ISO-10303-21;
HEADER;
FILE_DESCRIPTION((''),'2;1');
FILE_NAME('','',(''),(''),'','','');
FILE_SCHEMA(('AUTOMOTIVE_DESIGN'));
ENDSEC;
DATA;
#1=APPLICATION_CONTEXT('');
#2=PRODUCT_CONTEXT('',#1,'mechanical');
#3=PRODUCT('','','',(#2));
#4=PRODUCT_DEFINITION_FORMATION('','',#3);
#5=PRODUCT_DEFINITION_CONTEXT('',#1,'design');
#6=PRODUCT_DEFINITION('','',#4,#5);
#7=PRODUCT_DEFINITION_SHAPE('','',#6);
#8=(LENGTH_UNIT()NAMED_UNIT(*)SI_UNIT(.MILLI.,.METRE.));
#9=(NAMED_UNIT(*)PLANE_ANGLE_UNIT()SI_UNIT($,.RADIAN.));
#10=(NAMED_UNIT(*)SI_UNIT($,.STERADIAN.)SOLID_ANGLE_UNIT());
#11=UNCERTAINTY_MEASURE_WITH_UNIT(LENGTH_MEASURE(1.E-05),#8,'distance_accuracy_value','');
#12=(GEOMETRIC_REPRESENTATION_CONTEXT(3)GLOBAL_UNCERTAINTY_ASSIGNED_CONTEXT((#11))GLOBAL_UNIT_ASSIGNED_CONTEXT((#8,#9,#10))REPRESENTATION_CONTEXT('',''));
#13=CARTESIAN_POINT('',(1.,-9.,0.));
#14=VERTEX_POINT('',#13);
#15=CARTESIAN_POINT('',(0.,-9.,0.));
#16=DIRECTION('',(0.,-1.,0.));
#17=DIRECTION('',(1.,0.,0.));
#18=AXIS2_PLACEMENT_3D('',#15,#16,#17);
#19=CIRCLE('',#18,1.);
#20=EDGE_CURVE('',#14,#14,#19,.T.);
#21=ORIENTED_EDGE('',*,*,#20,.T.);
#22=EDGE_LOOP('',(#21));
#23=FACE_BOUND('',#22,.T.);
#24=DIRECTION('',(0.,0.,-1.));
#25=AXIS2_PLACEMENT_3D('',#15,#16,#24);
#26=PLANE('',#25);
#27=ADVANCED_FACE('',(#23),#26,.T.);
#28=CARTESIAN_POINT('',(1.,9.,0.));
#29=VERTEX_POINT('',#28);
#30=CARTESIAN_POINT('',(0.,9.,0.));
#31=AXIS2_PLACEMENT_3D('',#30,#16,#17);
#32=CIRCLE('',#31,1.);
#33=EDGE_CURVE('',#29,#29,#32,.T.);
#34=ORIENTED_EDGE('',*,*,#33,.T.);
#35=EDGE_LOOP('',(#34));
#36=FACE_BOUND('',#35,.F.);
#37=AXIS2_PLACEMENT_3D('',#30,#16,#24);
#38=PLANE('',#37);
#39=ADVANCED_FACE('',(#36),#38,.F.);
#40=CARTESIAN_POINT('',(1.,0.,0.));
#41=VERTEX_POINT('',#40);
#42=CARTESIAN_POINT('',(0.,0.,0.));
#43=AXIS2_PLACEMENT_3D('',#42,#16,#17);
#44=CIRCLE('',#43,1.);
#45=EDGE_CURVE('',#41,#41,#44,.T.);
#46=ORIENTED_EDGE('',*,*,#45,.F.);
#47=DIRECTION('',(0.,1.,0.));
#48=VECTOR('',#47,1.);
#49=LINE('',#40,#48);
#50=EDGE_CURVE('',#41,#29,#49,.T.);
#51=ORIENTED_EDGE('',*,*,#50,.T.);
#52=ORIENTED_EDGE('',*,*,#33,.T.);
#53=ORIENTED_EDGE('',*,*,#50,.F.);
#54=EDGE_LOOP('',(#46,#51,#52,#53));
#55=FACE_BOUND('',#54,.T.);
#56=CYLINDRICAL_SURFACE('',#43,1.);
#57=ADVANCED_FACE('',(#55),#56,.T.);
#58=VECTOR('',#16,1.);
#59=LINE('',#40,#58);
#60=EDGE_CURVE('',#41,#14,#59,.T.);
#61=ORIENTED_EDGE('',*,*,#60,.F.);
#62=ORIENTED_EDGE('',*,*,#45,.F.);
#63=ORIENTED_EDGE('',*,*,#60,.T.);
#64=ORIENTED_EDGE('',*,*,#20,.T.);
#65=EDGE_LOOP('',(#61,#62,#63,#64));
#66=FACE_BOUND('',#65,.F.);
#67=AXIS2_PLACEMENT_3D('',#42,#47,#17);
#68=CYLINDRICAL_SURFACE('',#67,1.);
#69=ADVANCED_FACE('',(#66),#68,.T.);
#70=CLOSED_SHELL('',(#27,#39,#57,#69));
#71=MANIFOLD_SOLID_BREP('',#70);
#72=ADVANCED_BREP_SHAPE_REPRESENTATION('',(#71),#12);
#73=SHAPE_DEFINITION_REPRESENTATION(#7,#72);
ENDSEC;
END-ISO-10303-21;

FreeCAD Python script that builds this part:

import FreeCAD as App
import Part
import Sketcher
from FreeCAD import Vector

doc = App.newDocument("Part")
body = doc.addObject("PartDesign::Body", "Body")

# Sketch on XZ plane
sketch1 = doc.addObject("Sketcher::SketchObject", "Sketch")
body.addObject(sketch1)
sketch1.AttachmentSupport = (doc.XZ_Plane, [""])
sketch1.MapMode = "FlatFace"
sketch1.addGeometry(Part.Circle(Vector(0, 0, 0), Vector(0, 0, 1), 1), False)
sketch1.addConstraint([
    Sketcher.Constraint("Coincident", 0, 3, -1, 1),
    Sketcher.Constraint("Diameter", 0, 2.0),
])
pad1 = doc.addObject("PartDesign::Pad", "Pad")
body.addObject(pad1)
pad1.Profile = sketch1
pad1.Length = 18
pad1.Midplane = True

doc.recompute()
